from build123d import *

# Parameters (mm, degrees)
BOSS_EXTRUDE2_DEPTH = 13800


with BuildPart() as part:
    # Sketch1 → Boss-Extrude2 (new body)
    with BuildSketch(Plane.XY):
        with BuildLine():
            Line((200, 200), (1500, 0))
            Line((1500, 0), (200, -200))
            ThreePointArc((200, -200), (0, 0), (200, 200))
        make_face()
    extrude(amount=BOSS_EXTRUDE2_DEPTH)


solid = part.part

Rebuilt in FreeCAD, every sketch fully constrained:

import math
import FreeCAD as App
import Part
import Sketcher
from FreeCAD import Vector

doc = App.newDocument("Part")
params = doc.addObject("Spreadsheet::Sheet", "Params")
for row, (alias, value) in enumerate([
    ("sketch1_radius", "200 mm"),
    ("pad1_length", "13800 mm"),
], start=1):
    params.set(f"A{row}", alias)
    params.set(f"B{row}", "=" + value)
    params.setAlias(f"B{row}", alias)

body = doc.addObject("PartDesign::Body", "Body")

# Sketch on XY plane
sketch1 = body.newObject("Sketcher::SketchObject", "Sketch")
sketch1.AttachmentSupport = (doc.getObject("XY_Plane"), [""])
sketch1.MapMode = "FlatFace"
sketch1.addGeometry([
    Part.LineSegment(Vector(1500, 0, 0), Vector(200, 200, 0)),
    Part.ArcOfCircle(Part.Circle(Vector(200, 0, 0), Vector(0, 0, 1), 200), math.radians(90), math.radians(270)),
    Part.LineSegment(Vector(200, -200, 0), Vector(1500, 0, 0)),
], False)
sketch1.addConstraint([
    Sketcher.Constraint("Coincident", 0, 2, 1, 1),
    Sketcher.Constraint("Coincident", 1, 2, 2, 1),
    Sketcher.Constraint("Coincident", 2, 2, 0, 1),
    Sketcher.Constraint("Symmetric", 0, 2, 1, 2, -1),
    Sketcher.Constraint("PointOnObject", 2, 2, -1),
    Sketcher.Constraint("Vertical", 1, 3, 0, 2),
    Sketcher.Constraint("Radius", 1, 200.0),
    Sketcher.Constraint("DistanceX", -1, 1, 1, 3, 200.0),
    Sketcher.Constraint("DistanceX", -1, 1, 2, 2, 1500.0),
])
sketch1.setExpression("Constraints[6]", "Params.sketch1_radius")
pad1 = body.newObject("PartDesign::Pad", "Pad")
pad1.Profile = sketch1
pad1.setExpression("Length", "Params.pad1_length")

doc.recompute()
